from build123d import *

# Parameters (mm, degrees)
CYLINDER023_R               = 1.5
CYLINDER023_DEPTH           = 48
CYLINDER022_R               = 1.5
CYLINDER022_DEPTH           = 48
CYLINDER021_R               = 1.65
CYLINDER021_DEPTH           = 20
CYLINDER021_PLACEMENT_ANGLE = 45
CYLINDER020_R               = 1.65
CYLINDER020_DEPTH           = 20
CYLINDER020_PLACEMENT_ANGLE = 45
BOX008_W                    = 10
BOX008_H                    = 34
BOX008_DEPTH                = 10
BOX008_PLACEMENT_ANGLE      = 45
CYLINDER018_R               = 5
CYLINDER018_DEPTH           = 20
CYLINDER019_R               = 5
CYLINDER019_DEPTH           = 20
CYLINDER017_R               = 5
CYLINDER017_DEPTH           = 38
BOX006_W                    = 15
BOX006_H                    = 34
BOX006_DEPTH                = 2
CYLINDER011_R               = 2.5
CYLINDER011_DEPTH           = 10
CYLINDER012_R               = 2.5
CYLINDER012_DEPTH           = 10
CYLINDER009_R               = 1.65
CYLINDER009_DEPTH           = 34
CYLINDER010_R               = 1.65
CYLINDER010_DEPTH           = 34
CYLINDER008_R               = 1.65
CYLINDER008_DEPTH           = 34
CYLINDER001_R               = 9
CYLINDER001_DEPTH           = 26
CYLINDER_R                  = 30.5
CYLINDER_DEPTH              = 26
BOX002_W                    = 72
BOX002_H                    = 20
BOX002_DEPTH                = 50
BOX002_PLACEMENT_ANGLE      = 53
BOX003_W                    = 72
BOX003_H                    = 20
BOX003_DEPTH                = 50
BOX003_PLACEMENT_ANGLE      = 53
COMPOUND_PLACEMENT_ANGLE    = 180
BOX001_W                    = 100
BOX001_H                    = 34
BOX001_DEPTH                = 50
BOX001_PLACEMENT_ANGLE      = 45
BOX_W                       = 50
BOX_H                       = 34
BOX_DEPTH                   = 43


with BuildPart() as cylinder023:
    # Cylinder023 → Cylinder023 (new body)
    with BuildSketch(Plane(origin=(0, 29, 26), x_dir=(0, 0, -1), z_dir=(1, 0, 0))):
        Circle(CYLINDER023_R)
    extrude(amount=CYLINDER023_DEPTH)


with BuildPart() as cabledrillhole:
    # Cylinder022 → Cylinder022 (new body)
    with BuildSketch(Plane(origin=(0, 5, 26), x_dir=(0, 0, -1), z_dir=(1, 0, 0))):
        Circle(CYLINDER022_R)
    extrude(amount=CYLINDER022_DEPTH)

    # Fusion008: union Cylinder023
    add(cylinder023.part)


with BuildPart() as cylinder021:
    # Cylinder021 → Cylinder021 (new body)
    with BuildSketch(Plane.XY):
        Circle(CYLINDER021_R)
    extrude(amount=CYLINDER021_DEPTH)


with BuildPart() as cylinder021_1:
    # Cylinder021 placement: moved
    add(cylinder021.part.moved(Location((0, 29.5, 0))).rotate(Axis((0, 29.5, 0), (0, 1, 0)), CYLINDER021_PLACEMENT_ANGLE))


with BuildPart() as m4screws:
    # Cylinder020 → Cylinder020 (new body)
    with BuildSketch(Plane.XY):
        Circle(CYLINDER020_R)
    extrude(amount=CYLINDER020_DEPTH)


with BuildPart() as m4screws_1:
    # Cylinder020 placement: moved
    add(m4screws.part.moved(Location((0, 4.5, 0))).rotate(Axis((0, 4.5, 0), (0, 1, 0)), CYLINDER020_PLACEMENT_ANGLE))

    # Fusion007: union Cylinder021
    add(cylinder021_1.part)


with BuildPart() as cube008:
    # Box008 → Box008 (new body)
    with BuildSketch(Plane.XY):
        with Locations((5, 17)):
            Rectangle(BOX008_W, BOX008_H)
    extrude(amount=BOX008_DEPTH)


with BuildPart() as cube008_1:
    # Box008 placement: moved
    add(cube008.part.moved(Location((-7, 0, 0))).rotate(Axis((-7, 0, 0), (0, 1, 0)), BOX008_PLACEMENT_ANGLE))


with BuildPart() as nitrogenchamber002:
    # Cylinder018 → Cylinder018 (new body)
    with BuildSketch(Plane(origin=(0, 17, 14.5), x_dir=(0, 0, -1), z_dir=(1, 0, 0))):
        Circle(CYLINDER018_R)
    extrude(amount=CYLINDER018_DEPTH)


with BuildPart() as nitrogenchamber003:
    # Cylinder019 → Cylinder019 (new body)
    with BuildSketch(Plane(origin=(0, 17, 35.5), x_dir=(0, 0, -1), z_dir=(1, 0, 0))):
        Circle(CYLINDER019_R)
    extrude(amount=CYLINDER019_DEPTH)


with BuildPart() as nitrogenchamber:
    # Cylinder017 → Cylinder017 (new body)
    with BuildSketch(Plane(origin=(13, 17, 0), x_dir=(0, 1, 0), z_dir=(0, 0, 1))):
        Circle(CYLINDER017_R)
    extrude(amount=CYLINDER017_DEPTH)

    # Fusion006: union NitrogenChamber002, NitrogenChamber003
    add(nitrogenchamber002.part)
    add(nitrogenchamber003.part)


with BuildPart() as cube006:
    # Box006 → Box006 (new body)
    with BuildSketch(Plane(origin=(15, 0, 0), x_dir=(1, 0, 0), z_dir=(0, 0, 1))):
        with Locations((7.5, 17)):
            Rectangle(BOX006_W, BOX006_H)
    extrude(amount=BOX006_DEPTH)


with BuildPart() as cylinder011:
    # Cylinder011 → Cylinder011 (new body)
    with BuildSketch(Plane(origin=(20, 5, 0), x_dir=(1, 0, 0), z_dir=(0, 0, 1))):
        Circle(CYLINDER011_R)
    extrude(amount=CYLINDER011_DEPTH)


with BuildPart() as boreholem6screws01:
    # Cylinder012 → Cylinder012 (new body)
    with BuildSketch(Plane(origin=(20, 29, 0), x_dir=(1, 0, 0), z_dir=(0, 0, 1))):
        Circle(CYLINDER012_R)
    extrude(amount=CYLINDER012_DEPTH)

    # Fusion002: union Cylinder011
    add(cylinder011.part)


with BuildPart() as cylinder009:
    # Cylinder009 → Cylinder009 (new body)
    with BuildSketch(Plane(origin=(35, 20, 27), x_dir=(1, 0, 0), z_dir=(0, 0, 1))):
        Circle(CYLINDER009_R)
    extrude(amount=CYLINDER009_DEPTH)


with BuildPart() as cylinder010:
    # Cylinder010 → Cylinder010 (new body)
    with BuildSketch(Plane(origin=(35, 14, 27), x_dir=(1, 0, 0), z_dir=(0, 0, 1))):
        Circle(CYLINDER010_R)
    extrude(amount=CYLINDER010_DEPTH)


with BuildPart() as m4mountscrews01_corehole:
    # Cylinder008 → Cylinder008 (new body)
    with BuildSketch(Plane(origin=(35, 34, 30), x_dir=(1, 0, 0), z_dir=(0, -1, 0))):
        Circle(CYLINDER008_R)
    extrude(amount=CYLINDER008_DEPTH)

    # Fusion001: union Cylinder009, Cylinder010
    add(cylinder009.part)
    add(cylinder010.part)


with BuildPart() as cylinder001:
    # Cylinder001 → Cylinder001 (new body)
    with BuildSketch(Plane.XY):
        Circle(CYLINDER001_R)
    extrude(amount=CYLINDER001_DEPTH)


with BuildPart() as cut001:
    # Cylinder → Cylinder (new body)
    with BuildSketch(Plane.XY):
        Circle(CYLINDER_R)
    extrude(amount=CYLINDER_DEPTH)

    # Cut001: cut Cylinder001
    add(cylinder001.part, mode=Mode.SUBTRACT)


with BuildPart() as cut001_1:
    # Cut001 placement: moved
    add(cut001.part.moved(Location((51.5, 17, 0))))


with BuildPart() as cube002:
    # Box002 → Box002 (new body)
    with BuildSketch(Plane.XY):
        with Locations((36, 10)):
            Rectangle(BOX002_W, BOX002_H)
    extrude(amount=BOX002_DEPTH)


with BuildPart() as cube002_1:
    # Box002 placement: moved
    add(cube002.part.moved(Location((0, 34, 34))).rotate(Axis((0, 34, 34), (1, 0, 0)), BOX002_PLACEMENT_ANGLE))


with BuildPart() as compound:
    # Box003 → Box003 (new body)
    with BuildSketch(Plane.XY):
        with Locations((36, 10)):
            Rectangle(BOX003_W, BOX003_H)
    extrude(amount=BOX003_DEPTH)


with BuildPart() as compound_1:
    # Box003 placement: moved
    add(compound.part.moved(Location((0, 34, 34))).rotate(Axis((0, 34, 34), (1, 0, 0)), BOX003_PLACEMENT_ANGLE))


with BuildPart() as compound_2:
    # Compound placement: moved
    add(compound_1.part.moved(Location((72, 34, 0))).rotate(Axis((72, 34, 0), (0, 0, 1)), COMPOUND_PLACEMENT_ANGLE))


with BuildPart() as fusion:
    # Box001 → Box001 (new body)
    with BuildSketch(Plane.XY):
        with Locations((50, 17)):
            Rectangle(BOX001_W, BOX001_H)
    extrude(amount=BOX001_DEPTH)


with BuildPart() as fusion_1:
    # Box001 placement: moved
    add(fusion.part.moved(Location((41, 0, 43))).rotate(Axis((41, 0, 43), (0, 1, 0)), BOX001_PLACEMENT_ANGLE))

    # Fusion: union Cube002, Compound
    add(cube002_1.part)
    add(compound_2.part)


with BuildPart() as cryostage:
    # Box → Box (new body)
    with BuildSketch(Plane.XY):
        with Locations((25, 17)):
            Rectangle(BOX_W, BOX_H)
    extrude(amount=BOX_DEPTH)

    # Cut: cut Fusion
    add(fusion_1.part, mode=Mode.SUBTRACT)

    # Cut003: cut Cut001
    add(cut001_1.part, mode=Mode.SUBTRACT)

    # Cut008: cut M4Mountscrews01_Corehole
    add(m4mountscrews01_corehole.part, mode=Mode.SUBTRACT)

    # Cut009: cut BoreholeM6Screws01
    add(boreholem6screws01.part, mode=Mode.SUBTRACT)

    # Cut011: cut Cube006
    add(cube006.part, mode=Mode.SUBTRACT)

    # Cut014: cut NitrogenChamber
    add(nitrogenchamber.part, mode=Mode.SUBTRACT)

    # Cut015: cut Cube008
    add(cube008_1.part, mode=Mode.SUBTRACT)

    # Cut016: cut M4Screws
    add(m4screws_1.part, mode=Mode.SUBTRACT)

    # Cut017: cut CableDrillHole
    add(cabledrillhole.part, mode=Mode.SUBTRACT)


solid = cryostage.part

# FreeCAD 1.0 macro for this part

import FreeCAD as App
import Part
import Sketcher

V = App.Vector
Q = App.Units.Quantity

doc = App.newDocument("Part")
body = doc.addObject("PartDesign::Body", "Body")

sketch1 = body.newObject("Sketcher::SketchObject", "Sketch")
sketch1.AttachmentSupport = (doc.getObject("YZ_Plane"), [""])
sketch1.MapMode = "FlatFace"
sketch1.addGeometry(Part.Circle(V(29, 26, 0), V(0, 0, 1), 1.5), False)
sketch1.addConstraint(Sketcher.Constraint("Diameter", 0, Q("3 mm")))
sketch1.addConstraint(Sketcher.Constraint("DistanceX", -1, 1, 0, 3, Q("29 mm")))
sketch1.addConstraint(Sketcher.Constraint("DistanceY", -1, 1, 0, 3, Q("26 mm")))
pad1 = body.newObject("PartDesign::Pad", "Pad")
pad1.Profile = sketch1
pad1.Length = 48
body2 = doc.addObject("PartDesign::Body", "Body001")
body2.AllowCompound = True

sketch2 = body2.newObject("Sketcher::SketchObject", "Sketch001")
sketch2.AttachmentSupport = (doc.getObject("YZ_Plane001"), [""])
sketch2.MapMode = "FlatFace"
sketch2.addGeometry(Part.Circle(V(5, 26, 0), V(0, 0, 1), 1.5), False)
sketch2.addConstraint(Sketcher.Constraint("Diameter", 0, Q("3 mm")))
sketch2.addConstraint(Sketcher.Constraint("DistanceX", -1, 1, 0, 3, Q("5 mm")))
sketch2.addConstraint(Sketcher.Constraint("DistanceY", -1, 1, 0, 3, Q("26 mm")))
pad2 = body2.newObject("PartDesign::Pad", "Pad001")
pad2.Profile = sketch2
pad2.Length = 48
doc.recompute()

boolean = body2.newObject("PartDesign::Boolean", "Boolean")
boolean.Type = "Fuse"
boolean.addObjects([body])
body3 = doc.addObject("PartDesign::Body", "Body002")

sketch3 = body3.newObject("Sketcher::SketchObject", "Sketch002")
sketch3.AttachmentSupport = (doc.getObject("XY_Plane002"), [""])
sketch3.MapMode = "FlatFace"
sketch3.addGeometry(Part.Circle(V(0, 0, 0), V(0, 0, 1), 1.65), False)
sketch3.addConstraint(Sketcher.Constraint("Coincident", 0, 3, -1, 1))
sketch3.addConstraint(Sketcher.Constraint("Diameter", 0, Q("3.3 mm")))
pad3 = body3.newObject("PartDesign::Pad", "Pad002")
pad3.Profile = sketch3
pad3.Length = 20
body4 = doc.addObject("PartDesign::Body", "Body003")
doc.recompute()

body3.Placement = App.Placement(V(0, 29.5, 0), App.Rotation(V(0, 1, 0), 45))
boolean2 = body4.newObject("PartDesign::Boolean", "Boolean001")
boolean2.Type = "Fuse"
boolean2.addObjects([body3])
body5 = doc.addObject("PartDesign::Body", "Body004")

sketch4 = body5.newObject("Sketcher::SketchObject", "Sketch003")
sketch4.AttachmentSupport = (doc.getObject("XY_Plane004"), [""])
sketch4.MapMode = "FlatFace"
sketch4.addGeometry(Part.Circle(V(0, 0, 0), V(0, 0, 1), 1.65), False)
sketch4.addConstraint(Sketcher.Constraint("Coincident", 0, 3, -1, 1))
sketch4.addConstraint(Sketcher.Constraint("Diameter", 0, Q("3.3 mm")))
pad4 = body5.newObject("PartDesign::Pad", "Pad003")
pad4.Profile = sketch4
pad4.Length = 20
body6 = doc.addObject("PartDesign::Body", "Body005")
body6.AllowCompound = True
doc.recompute()

body5.Placement = App.Placement(V(0, 4.5, 0), App.Rotation(V(0, 1, 0), 45))
boolean3 = body6.newObject("PartDesign::Boolean", "Boolean002")
boolean3.Type = "Fuse"
boolean3.addObjects([body5])
doc.recompute()

boolean4 = body6.newObject("PartDesign::Boolean", "Boolean003")
boolean4.Type = "Fuse"
boolean4.addObjects([body4])
body7 = doc.addObject("PartDesign::Body", "Body006")

sketch5 = body7.newObject("Sketcher::SketchObject", "Sketch004")
sketch5.AttachmentSupport = (doc.getObject("XY_Plane006"), [""])
sketch5.MapMode = "FlatFace"
sketch5.addGeometry(Part.LineSegment(V(0, 34, 0), V(0, 0, 0)), False)
sketch5.addGeometry(Part.LineSegment(V(0, 0, 0), V(10, 0, 0)), False)
sketch5.addGeometry(Part.LineSegment(V(10, 0, 0), V(10, 34, 0)), False)
sketch5.addGeometry(Part.LineSegment(V(10, 34, 0), V(0, 34, 0)), False)
sketch5.addConstraint(Sketcher.Constraint("Coincident", 0, 2, 1, 1))
sketch5.addConstraint(Sketcher.Constraint("Coincident", 1, 2, 2, 1))
sketch5.addConstraint(Sketcher.Constraint("Coincident", 2, 2, 3, 1))
sketch5.addConstraint(Sketcher.Constraint("Coincident", 3, 2, 0, 1))
sketch5.addConstraint(Sketcher.Constraint("Vertical", 0))
sketch5.addConstraint(Sketcher.Constraint("Horizontal", 1))
sketch5.addConstraint(Sketcher.Constraint("Vertical", 2))
sketch5.addConstraint(Sketcher.Constraint("Horizontal", 3))
sketch5.addConstraint(Sketcher.Constraint("Coincident", 0, 2, -1, 1))
sketch5.addConstraint(Sketcher.Constraint("DistanceX", 1, 1, 1, 2, Q("10 mm")))
sketch5.addConstraint(Sketcher.Constraint("DistanceY", 0, 2, 0, 1, Q("34 mm")))
pad5 = body7.newObject("PartDesign::Pad", "Pad004")
pad5.Profile = sketch5
pad5.Length = 10
body8 = doc.addObject("PartDesign::Body", "Body007")
doc.recompute()

body7.Placement = App.Placement(V(-7, 0, 0), App.Rotation(V(0, 1, 0), 45))
boolean5 = body8.newObject("PartDesign::Boolean", "Boolean004")
boolean5.Type = "Fuse"
boolean5.addObjects([body7])
body9 = doc.addObject("PartDesign::Body", "Body008")

sketch6 = body9.newObject("Sketcher::SketchObject", "Sketch005")
sketch6.AttachmentSupport = (doc.getObject("YZ_Plane008"), [""])
sketch6.MapMode = "FlatFace"
sketch6.addGeometry(Part.Circle(V(17, 14.5, 0), V(0, 0, 1), 5), False)
sketch6.addConstraint(Sketcher.Constraint("Diameter", 0, Q("10 mm")))
sketch6.addConstraint(Sketcher.Constraint("DistanceX", -1, 1, 0, 3, Q("17 mm")))
sketch6.addConstraint(Sketcher.Constraint("DistanceY", -1, 1, 0, 3, Q("14.5 mm")))
pad6 = body9.newObject("PartDesign::Pad", "Pad005")
pad6.Profile = sketch6
pad6.Length = 20
body10 = doc.addObject("PartDesign::Body", "Body009")

sketch7 = body10.newObject("Sketcher::SketchObject", "Sketch006")
sketch7.AttachmentSupport = (doc.getObject("YZ_Plane009"), [""])
sketch7.MapMode = "FlatFace"
sketch7.addGeometry(Part.Circle(V(17, 35.5, 0), V(0, 0, 1), 5), False)
sketch7.addConstraint(Sketcher.Constraint("Diameter", 0, Q("10 mm")))
sketch7.addConstraint(Sketcher.Constraint("DistanceX", -1, 1, 0, 3, Q("17 mm")))
sketch7.addConstraint(Sketcher.Constraint("DistanceY", -1, 1, 0, 3, Q("35.5 mm")))
pad7 = body10.newObject("PartDesign::Pad", "Pad006")
pad7.Profile = sketch7
pad7.Length = 20
body11 = doc.addObject("PartDesign::Body", "Body010")

sketch8 = body11.newObject("Sketcher::SketchObject", "Sketch007")
sketch8.AttachmentSupport = (doc.getObject("XY_Plane010"), [""])
sketch8.MapMode = "FlatFace"
sketch8.addGeometry(Part.Circle(V(13, 17, 0), V(0, 0, 1), 5), False)
sketch8.addConstraint(Sketcher.Constraint("Diameter", 0, Q("10 mm")))
sketch8.addConstraint(Sketcher.Constraint("DistanceX", -1, 1, 0, 3, Q("13 mm")))
sketch8.addConstraint(Sketcher.Constraint("DistanceY", -1, 1, 0, 3, Q("17 mm")))
pad8 = body11.newObject("PartDesign::Pad", "Pad007")
pad8.Profile = sketch8
pad8.Length = 38
doc.recompute()

boolean6 = body11.newObject("PartDesign::Boolean", "Boolean005")
boolean6.Type = "Fuse"
boolean6.addObjects([body9])
doc.recompute()

boolean7 = body11.newObject("PartDesign::Boolean", "Boolean006")
boolean7.Type = "Fuse"
boolean7.addObjects([body10])
body12 = doc.addObject("PartDesign::Body", "Body011")

sketch9 = body12.newObject("Sketcher::SketchObject", "Sketch008")
sketch9.AttachmentSupport = (doc.getObject("XY_Plane011"), [""])
sketch9.MapMode = "FlatFace"
sketch9.addGeometry(Part.LineSegment(V(15, 34, 0), V(15, 0, 0)), False)
sketch9.addGeometry(Part.LineSegment(V(15, 0, 0), V(30, 0, 0)), False)
sketch9.addGeometry(Part.LineSegment(V(30, 0, 0), V(30, 34, 0)), False)
sketch9.addGeometry(Part.LineSegment(V(30, 34, 0), V(15, 34, 0)), False)
sketch9.addConstraint(Sketcher.Constraint("Coincident", 0, 2, 1, 1))
sketch9.addConstraint(Sketcher.Constraint("Coincident", 1, 2, 2, 1))
sketch9.addConstraint(Sketcher.Constraint("Coincident", 2, 2, 3, 1))
sketch9.addConstraint(Sketcher.Constraint("Coincident", 3, 2, 0, 1))
sketch9.addConstraint(Sketcher.Constraint("Vertical", 0))
sketch9.addConstraint(Sketcher.Constraint("Horizontal", 1))
sketch9.addConstraint(Sketcher.Constraint("Vertical", 2))
sketch9.addConstraint(Sketcher.Constraint("Horizontal", 3))
sketch9.addConstraint(Sketcher.Constraint("PointOnObject", 0, 2, -1))
sketch9.addConstraint(Sketcher.Constraint("DistanceX", 1, 1, 1, 2, Q("15 mm")))
sketch9.addConstraint(Sketcher.Constraint("DistanceY", 0, 2, 0, 1, Q("34 mm")))
sketch9.addConstraint(Sketcher.Constraint("DistanceX", -1, 1, 0, 2, Q("15 mm")))
pad9 = body12.newObject("PartDesign::Pad", "Pad008")
pad9.Profile = sketch9
pad9.Length = 2
body13 = doc.addObject("PartDesign::Body", "Body012")

sketch10 = body13.newObject("Sketcher::SketchObject", "Sketch009")
sketch10.AttachmentSupport = (doc.getObject("XY_Plane012"), [""])
sketch10.MapMode = "FlatFace"
sketch10.addGeometry(Part.Circle(V(20, 5, 0), V(0, 0, 1), 2.5), False)
sketch10.addConstraint(Sketcher.Constraint("Diameter", 0, Q("5 mm")))
sketch10.addConstraint(Sketcher.Constraint("DistanceX", -1, 1, 0, 3, Q("20 mm")))
sketch10.addConstraint(Sketcher.Constraint("DistanceY", -1, 1, 0, 3, Q("5 mm")))
pad10 = body13.newObject("PartDesign::Pad", "Pad009")
pad10.Profile = sketch10
pad10.Length = 10
body14 = doc.addObject("PartDesign::Body", "Body013")
body14.AllowCompound = True

sketch11 = body14.newObject("Sketcher::SketchObject", "Sketch010")
sketch11.AttachmentSupport = (doc.getObject("XY_Plane013"), [""])
sketch11.MapMode = "FlatFace"
sketch11.addGeometry(Part.Circle(V(20, 29, 0), V(0, 0, 1), 2.5), False)
sketch11.addConstraint(Sketcher.Constraint("Diameter", 0, Q("5 mm")))
sketch11.addConstraint(Sketcher.Constraint("DistanceX", -1, 1, 0, 3, Q("20 mm")))
sketch11.addConstraint(Sketcher.Constraint("DistanceY", -1, 1, 0, 3, Q("29 mm")))
pad11 = body14.newObject("PartDesign::Pad", "Pad010")
pad11.Profile = sketch11
pad11.Length = 10
doc.recompute()

boolean8 = body14.newObject("PartDesign::Boolean", "Boolean007")
boolean8.Type = "Fuse"
boolean8.addObjects([body13])
body15 = doc.addObject("PartDesign::Body", "Body014")

sketch12 = body15.newObject("Sketcher::SketchObject", "Sketch011")
sketch12.AttachmentSupport = (doc.getObject("XY_Plane014"), [""])
sketch12.MapMode = "FlatFace"
sketch12.AttachmentOffset = App.Placement(V(0, 0, 27), App.Rotation())
sketch12.addGeometry(Part.Circle(V(35, 20, 0), V(0, 0, 1), 1.65), False)
sketch12.addConstraint(Sketcher.Constraint("Diameter", 0, Q("3.3 mm")))
sketch12.addConstraint(Sketcher.Constraint("DistanceX", -1, 1, 0, 3, Q("35 mm")))
sketch12.addConstraint(Sketcher.Constraint("DistanceY", -1, 1, 0, 3, Q("20 mm")))
pad12 = body15.newObject("PartDesign::Pad", "Pad011")
pad12.Profile = sketch12
pad12.Length = 34
body16 = doc.addObject("PartDesign::Body", "Body015")

sketch13 = body16.newObject("Sketcher::SketchObject", "Sketch012")
sketch13.AttachmentSupport = (doc.getObject("XY_Plane015"), [""])
sketch13.MapMode = "FlatFace"
sketch13.AttachmentOffset = App.Placement(V(0, 0, 27), App.Rotation())
sketch13.addGeometry(Part.Circle(V(35, 14, 0), V(0, 0, 1), 1.65), False)
sketch13.addConstraint(Sketcher.Constraint("Diameter", 0, Q("3.3 mm")))
sketch13.addConstraint(Sketcher.Constraint("DistanceX", -1, 1, 0, 3, Q("35 mm")))
sketch13.addConstraint(Sketcher.Constraint("DistanceY", -1, 1, 0, 3, Q("14 mm")))
pad13 = body16.newObject("PartDesign::Pad", "Pad012")
pad13.Profile = sketch13
pad13.Length = 34
body17 = doc.addObject("PartDesign::Body", "Body016")

sketch14 = body17.newObject("Sketcher::SketchObject", "Sketch013")
sketch14.AttachmentSupport = (doc.getObject("XZ_Plane016"), [""])
sketch14.MapMode = "FlatFace"
sketch14.AttachmentOffset = App.Placement(V(0, 0, -34), App.Rotation())
sketch14.addGeometry(Part.Circle(V(35, 30, 0), V(0, 0, 1), 1.65), False)
sketch14.addConstraint(Sketcher.Constraint("Diameter", 0, Q("3.3 mm")))
sketch14.addConstraint(Sketcher.Constraint("DistanceX", -1, 1, 0, 3, Q("35 mm")))
sketch14.addConstraint(Sketcher.Constraint("DistanceY", -1, 1, 0, 3, Q("30 mm")))
pad14 = body17.newObject("PartDesign::Pad", "Pad013")
pad14.Profile = sketch14
pad14.Length = 34
doc.recompute()

boolean9 = body17.newObject("PartDesign::Boolean", "Boolean008")
boolean9.Type = "Fuse"
boolean9.addObjects([body15])
doc.recompute()

boolean10 = body17.newObject("PartDesign::Boolean", "Boolean009")
boolean10.Type = "Fuse"
boolean10.addObjects([body16])
body18 = doc.addObject("PartDesign::Body", "Body017")

sketch15 = body18.newObject("Sketcher::SketchObject", "Sketch014")
sketch15.AttachmentSupport = (doc.getObject("XY_Plane017"), [""])
sketch15.MapMode = "FlatFace"
sketch15.addGeometry(Part.Circle(V(0, 0, 0), V(0, 0, 1), 9), False)
sketch15.addConstraint(Sketcher.Constraint("Coincident", 0, 3, -1, 1))
sketch15.addConstraint(Sketcher.Constraint("Diameter", 0, Q("18 mm")))
pad15 = body18.newObject("PartDesign::Pad", "Pad014")
pad15.Profile = sketch15
pad15.Length = 26
body19 = doc.addObject("PartDesign::Body", "Body018")

sketch16 = body19.newObject("Sketcher::SketchObject", "Sketch015")
sketch16.AttachmentSupport = (doc.getObject("XY_Plane018"), [""])
sketch16.MapMode = "FlatFace"
sketch16.addGeometry(Part.Circle(V(0, 0, 0), V(0, 0, 1), 30.5), False)
sketch16.addConstraint(Sketcher.Constraint("Coincident", 0, 3, -1, 1))
sketch16.addConstraint(Sketcher.Constraint("Diameter", 0, Q("61 mm")))
pad16 = body19.newObject("PartDesign::Pad", "Pad015")
pad16.Profile = sketch16
pad16.Length = 26
doc.recompute()

boolean11 = body19.newObject("PartDesign::Boolean", "Boolean010")
boolean11.Type = "Cut"
boolean11.addObjects([body18])
body20 = doc.addObject("PartDesign::Body", "Body019")
doc.recompute()

body19.Placement = App.Placement(V(51.5, 17, 0), App.Rotation(V(0, 0, 1), 0))
boolean12 = body20.newObject("PartDesign::Boolean", "Boolean011")
boolean12.Type = "Fuse"
boolean12.addObjects([body19])
body21 = doc.addObject("PartDesign::Body", "Body020")

sketch17 = body21.newObject("Sketcher::SketchObject", "Sketch016")
sketch17.AttachmentSupport = (doc.getObject("XY_Plane020"), [""])
sketch17.MapMode = "FlatFace"
sketch17.addGeometry(Part.LineSegment(V(0, 20, 0), V(0, 0, 0)), False)
sketch17.addGeometry(Part.LineSegment(V(0, 0, 0), V(72, 0, 0)), False)
sketch17.addGeometry(Part.LineSegment(V(72, 0, 0), V(72, 20, 0)), False)
sketch17.addGeometry(Part.LineSegment(V(72, 20, 0), V(0, 20, 0)), False)
sketch17.addConstraint(Sketcher.Constraint("Coincident", 0, 2, 1, 1))
sketch17.addConstraint(Sketcher.Constraint("Coincident", 1, 2, 2, 1))
sketch17.addConstraint(Sketcher.Constraint("Coincident", 2, 2, 3, 1))
sketch17.addConstraint(Sketcher.Constraint("Coincident", 3, 2, 0, 1))
sketch17.addConstraint(Sketcher.Constraint("Vertical", 0))
sketch17.addConstraint(Sketcher.Constraint("Horizontal", 1))
sketch17.addConstraint(Sketcher.Constraint("Vertical", 2))
sketch17.addConstraint(Sketcher.Constraint("Horizontal", 3))
sketch17.addConstraint(Sketcher.Constraint("Coincident", 0, 2, -1, 1))
sketch17.addConstraint(Sketcher.Constraint("DistanceX", 1, 1, 1, 2, Q("72 mm")))
sketch17.addConstraint(Sketcher.Constraint("DistanceY", 0, 2, 0, 1, Q("20 mm")))
pad17 = body21.newObject("PartDesign::Pad", "Pad016")
pad17.Profile = sketch17
pad17.Length = 50
body22 = doc.addObject("PartDesign::Body", "Body021")
doc.recompute()

body21.Placement = App.Placement(V(0, 34, 34), App.Rotation(V(1, 0, 0), 53))
boolean13 = body22.newObject("PartDesign::Boolean", "Boolean012")
boolean13.Type = "Fuse"
boolean13.addObjects([body21])
body23 = doc.addObject("PartDesign::Body", "Body022")

sketch18 = body23.newObject("Sketcher::SketchObject", "Sketch017")
sketch18.AttachmentSupport = (doc.getObject("XY_Plane022"), [""])
sketch18.MapMode = "FlatFace"
sketch18.addGeometry(Part.LineSegment(V(0, 20, 0), V(0, 0, 0)), False)
sketch18.addGeometry(Part.LineSegment(V(0, 0, 0), V(72, 0, 0)), False)
sketch18.addGeometry(Part.LineSegment(V(72, 0, 0), V(72, 20, 0)), False)
sketch18.addGeometry(Part.LineSegment(V(72, 20, 0), V(0, 20, 0)), False)
sketch18.addConstraint(Sketcher.Constraint("Coincident", 0, 2, 1, 1))
sketch18.addConstraint(Sketcher.Constraint("Coincident", 1, 2, 2, 1))
sketch18.addConstraint(Sketcher.Constraint("Coincident", 2, 2, 3, 1))
sketch18.addConstraint(Sketcher.Constraint("Coincident", 3, 2, 0, 1))
sketch18.addConstraint(Sketcher.Constraint("Vertical", 0))
sketch18.addConstraint(Sketcher.Constraint("Horizontal", 1))
sketch18.addConstraint(Sketcher.Constraint("Vertical", 2))
sketch18.addConstraint(Sketcher.Constraint("Horizontal", 3))
sketch18.addConstraint(Sketcher.Constraint("Coincident", 0, 2, -1, 1))
sketch18.addConstraint(Sketcher.Constraint("DistanceX", 1, 1, 1, 2, Q("72 mm")))
sketch18.addConstraint(Sketcher.Constraint("DistanceY", 0, 2, 0, 1, Q("20 mm")))
pad18 = body23.newObject("PartDesign::Pad", "Pad017")
pad18.Profile = sketch18
pad18.Length = 50
body24 = doc.addObject("PartDesign::Body", "Body023")
doc.recompute()

body23.Placement = App.Placement(V(0, 34, 34), App.Rotation(V(1, 0, 0), 53))
boolean14 = body24.newObject("PartDesign::Boolean", "Boolean013")
boolean14.Type = "Fuse"
boolean14.addObjects([body23])
body25 = doc.addObject("PartDesign::Body", "Body024")
doc.recompute()

body24.Placement = App.Placement(V(72, 34, 0), App.Rotation(V(0, 0, 1), 180))
boolean15 = body25.newObject("PartDesign::Boolean", "Boolean014")
boolean15.Type = "Fuse"
boolean15.addObjects([body24])
body26 = doc.addObject("PartDesign::Body", "Body025")

sketch19 = body26.newObject("Sketcher::SketchObject", "Sketch018")
sketch19.AttachmentSupport = (doc.getObject("XY_Plane025"), [""])
sketch19.MapMode = "FlatFace"
sketch19.addGeometry(Part.LineSegment(V(0, 34, 0), V(0, 0, 0)), False)
sketch19.addGeometry(Part.LineSegment(V(0, 0, 0), V(100, 0, 0)), False)
sketch19.addGeometry(Part.LineSegment(V(100, 0, 0), V(100, 34, 0)), False)
sketch19.addGeometry(Part.LineSegment(V(100, 34, 0), V(0, 34, 0)), False)
sketch19.addConstraint(Sketcher.Constraint("Coincident", 0, 2, 1, 1))
sketch19.addConstraint(Sketcher.Constraint("Coincident", 1, 2, 2, 1))
sketch19.addConstraint(Sketcher.Constraint("Coincident", 2, 2, 3, 1))
sketch19.addConstraint(Sketcher.Constraint("Coincident", 3, 2, 0, 1))
sketch19.addConstraint(Sketcher.Constraint("Vertical", 0))
sketch19.addConstraint(Sketcher.Constraint("Horizontal", 1))
sketch19.addConstraint(Sketcher.Constraint("Vertical", 2))
sketch19.addConstraint(Sketcher.Constraint("Horizontal", 3))
sketch19.addConstraint(Sketcher.Constraint("Coincident", 0, 2, -1, 1))
sketch19.addConstraint(Sketcher.Constraint("DistanceX", 1, 1, 1, 2, Q("100 mm")))
sketch19.addConstraint(Sketcher.Constraint("DistanceY", 0, 2, 0, 1, Q("34 mm")))
pad19 = body26.newObject("PartDesign::Pad", "Pad018")
pad19.Profile = sketch19
pad19.Length = 50
body27 = doc.addObject("PartDesign::Body", "Body026")
doc.recompute()

body26.Placement = App.Placement(V(41, 0, 43), App.Rotation(V(0, 1, 0), 45))
boolean16 = body27.newObject("PartDesign::Boolean", "Boolean015")
boolean16.Type = "Fuse"
boolean16.addObjects([body26])
doc.recompute()

boolean17 = body27.newObject("PartDesign::Boolean", "Boolean016")
boolean17.Type = "Fuse"
boolean17.addObjects([body22])
doc.recompute()

boolean18 = body27.newObject("PartDesign::Boolean", "Boolean017")
boolean18.Type = "Fuse"
boolean18.addObjects([body25])
body28 = doc.addObject("PartDesign::Body", "Body027")

sketch20 = body28.newObject("Sketcher::SketchObject", "Sketch019")
sketch20.AttachmentSupport = (doc.getObject("XY_Plane027"), [""])
sketch20.MapMode = "FlatFace"
sketch20.addGeometry(Part.LineSegment(V(0, 34, 0), V(0, 0, 0)), False)
sketch20.addGeometry(Part.LineSegment(V(0, 0, 0), V(50, 0, 0)), False)
sketch20.addGeometry(Part.LineSegment(V(50, 0, 0), V(50, 34, 0)), False)
sketch20.addGeometry(Part.LineSegment(V(50, 34, 0), V(0, 34, 0)), False)
sketch20.addConstraint(Sketcher.Constraint("Coincident", 0, 2, 1, 1))
sketch20.addConstraint(Sketcher.Constraint("Coincident", 1, 2, 2, 1))
sketch20.addConstraint(Sketcher.Constraint("Coincident", 2, 2, 3, 1))
sketch20.addConstraint(Sketcher.Constraint("Coincident", 3, 2, 0, 1))
sketch20.addConstraint(Sketcher.Constraint("Vertical", 0))
sketch20.addConstraint(Sketcher.Constraint("Horizontal", 1))
sketch20.addConstraint(Sketcher.Constraint("Vertical", 2))
sketch20.addConstraint(Sketcher.Constraint("Horizontal", 3))
sketch20.addConstraint(Sketcher.Constraint("Coincident", 0, 2, -1, 1))
sketch20.addConstraint(Sketcher.Constraint("DistanceX", 1, 1, 1, 2, Q("50 mm")))
sketch20.addConstraint(Sketcher.Constraint("DistanceY", 0, 2, 0, 1, Q("34 mm")))
pad20 = body28.newObject("PartDesign::Pad", "Pad019")
pad20.Profile = sketch20
pad20.Length = 43
doc.recompute()

boolean19 = body28.newObject("PartDesign::Boolean", "Boolean018")
boolean19.Type = "Cut"
boolean19.addObjects([body27])
doc.recompute()

boolean20 = body28.newObject("PartDesign::Boolean", "Boolean019")
boolean20.Type = "Cut"
boolean20.addObjects([body20])
doc.recompute()

boolean21 = body28.newObject("PartDesign::Boolean", "Boolean020")
boolean21.Type = "Cut"
boolean21.addObjects([body17])
doc.recompute()

boolean22 = body28.newObject("PartDesign::Boolean", "Boolean021")
boolean22.Type = "Cut"
boolean22.addObjects([body14])
doc.recompute()

boolean23 = body28.newObject("PartDesign::Boolean", "Boolean022")
boolean23.Type = "Cut"
boolean23.addObjects([body12])
doc.recompute()

boolean24 = body28.newObject("PartDesign::Boolean", "Boolean023")
boolean24.Type = "Cut"
boolean24.addObjects([body11])
doc.recompute()

boolean25 = body28.newObject("PartDesign::Boolean", "Boolean024")
boolean25.Type = "Cut"
boolean25.addObjects([body8])
doc.recompute()

boolean26 = body28.newObject("PartDesign::Boolean", "Boolean025")
boolean26.Type = "Cut"
boolean26.addObjects([body6])
doc.recompute()

boolean27 = body28.newObject("PartDesign::Boolean", "Boolean026")
boolean27.Type = "Cut"
boolean27.addObjects([body2])

doc.recompute()
